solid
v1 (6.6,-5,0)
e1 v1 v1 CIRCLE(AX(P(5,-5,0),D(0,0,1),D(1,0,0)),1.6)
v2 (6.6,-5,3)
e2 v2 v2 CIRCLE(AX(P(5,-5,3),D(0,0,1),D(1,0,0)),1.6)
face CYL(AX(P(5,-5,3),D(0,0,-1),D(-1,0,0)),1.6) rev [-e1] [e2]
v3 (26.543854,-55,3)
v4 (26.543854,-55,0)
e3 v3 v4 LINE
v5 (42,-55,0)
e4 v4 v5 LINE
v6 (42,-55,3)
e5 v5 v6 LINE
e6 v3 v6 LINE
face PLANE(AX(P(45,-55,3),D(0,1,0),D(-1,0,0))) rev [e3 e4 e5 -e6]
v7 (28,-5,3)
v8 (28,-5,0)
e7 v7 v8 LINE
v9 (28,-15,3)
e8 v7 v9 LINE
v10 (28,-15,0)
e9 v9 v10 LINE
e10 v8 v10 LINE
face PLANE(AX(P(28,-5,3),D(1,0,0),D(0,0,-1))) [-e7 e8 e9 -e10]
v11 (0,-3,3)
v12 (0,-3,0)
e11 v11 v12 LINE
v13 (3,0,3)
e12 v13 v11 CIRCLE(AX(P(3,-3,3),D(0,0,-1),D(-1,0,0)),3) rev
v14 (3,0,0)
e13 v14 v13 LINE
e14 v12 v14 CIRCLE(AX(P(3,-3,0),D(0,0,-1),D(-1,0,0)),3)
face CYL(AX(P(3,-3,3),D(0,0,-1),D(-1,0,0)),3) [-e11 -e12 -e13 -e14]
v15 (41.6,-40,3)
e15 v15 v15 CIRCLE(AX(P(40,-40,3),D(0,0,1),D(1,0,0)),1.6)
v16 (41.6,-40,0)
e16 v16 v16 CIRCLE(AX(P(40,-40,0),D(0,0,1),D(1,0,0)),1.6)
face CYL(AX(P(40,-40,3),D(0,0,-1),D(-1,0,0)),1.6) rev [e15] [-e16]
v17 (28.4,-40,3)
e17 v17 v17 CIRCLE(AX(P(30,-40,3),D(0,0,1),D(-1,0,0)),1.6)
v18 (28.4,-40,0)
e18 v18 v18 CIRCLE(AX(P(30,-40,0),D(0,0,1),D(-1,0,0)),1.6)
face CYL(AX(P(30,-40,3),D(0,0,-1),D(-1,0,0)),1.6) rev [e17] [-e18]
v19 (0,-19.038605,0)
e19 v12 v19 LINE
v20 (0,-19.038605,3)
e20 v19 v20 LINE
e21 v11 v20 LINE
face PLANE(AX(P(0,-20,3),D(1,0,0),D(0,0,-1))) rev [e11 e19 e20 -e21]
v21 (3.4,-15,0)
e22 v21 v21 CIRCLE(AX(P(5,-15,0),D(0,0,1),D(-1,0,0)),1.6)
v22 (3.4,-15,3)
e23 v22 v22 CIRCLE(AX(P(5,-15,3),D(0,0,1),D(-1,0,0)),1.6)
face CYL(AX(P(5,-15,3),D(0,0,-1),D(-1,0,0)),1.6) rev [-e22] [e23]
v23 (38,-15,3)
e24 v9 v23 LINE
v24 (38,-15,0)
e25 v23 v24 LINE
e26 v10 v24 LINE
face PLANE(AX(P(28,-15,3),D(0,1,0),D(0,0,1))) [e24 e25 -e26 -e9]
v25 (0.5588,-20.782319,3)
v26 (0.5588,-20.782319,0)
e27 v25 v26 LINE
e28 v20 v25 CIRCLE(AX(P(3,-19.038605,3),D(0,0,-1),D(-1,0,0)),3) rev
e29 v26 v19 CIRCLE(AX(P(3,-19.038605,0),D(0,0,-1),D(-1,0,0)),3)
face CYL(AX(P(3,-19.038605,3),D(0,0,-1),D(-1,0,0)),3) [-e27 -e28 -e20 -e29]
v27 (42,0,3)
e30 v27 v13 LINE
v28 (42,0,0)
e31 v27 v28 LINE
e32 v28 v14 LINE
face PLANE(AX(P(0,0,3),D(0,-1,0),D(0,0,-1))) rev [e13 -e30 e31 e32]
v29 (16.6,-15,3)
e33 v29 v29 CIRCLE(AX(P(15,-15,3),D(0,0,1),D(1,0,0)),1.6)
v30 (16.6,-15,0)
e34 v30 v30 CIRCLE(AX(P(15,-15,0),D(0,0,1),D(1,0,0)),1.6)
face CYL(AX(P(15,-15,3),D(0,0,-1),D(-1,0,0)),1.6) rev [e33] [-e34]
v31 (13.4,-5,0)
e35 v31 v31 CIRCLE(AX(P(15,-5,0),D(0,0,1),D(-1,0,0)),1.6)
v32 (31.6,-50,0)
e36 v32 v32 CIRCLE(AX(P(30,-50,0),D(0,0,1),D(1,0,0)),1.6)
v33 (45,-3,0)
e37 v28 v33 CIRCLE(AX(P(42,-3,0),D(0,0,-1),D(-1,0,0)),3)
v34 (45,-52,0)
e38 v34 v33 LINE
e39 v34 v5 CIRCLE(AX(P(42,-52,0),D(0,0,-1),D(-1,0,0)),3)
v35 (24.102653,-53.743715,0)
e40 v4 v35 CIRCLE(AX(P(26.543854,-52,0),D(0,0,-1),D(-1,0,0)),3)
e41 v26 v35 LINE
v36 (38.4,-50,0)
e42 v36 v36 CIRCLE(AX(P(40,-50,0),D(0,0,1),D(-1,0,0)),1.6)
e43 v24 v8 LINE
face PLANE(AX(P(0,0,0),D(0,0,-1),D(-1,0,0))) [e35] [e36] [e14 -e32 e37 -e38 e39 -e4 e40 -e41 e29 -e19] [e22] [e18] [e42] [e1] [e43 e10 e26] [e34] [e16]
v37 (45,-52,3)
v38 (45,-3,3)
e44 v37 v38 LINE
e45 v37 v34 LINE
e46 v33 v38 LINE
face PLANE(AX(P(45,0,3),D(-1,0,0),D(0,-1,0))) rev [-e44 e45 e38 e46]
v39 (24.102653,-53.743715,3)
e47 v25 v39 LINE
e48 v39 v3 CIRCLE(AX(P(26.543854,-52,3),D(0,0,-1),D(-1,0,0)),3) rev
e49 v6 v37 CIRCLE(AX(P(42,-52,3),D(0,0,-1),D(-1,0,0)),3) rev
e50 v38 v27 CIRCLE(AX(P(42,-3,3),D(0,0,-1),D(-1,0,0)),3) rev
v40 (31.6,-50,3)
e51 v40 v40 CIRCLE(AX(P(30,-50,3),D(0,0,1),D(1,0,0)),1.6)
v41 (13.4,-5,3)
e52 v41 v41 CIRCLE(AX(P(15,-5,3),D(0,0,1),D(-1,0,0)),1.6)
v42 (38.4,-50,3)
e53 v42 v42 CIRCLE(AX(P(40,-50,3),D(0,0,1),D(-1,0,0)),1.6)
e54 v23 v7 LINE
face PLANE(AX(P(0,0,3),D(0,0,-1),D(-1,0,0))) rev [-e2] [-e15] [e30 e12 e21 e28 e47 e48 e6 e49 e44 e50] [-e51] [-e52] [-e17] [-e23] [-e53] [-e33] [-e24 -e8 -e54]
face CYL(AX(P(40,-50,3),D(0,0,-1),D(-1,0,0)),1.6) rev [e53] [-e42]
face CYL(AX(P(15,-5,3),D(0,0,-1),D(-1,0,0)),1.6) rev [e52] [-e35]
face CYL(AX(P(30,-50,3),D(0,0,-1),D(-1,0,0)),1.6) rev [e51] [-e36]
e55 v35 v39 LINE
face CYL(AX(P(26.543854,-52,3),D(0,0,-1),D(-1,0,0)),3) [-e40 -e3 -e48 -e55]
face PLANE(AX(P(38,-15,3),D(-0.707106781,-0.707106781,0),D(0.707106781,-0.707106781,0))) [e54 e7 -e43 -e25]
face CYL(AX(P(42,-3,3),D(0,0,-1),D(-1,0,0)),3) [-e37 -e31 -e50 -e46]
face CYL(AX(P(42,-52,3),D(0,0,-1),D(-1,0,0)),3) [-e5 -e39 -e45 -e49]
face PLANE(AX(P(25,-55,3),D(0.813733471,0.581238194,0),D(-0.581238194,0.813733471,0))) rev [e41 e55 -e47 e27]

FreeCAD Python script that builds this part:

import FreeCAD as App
import Part
import Sketcher

V = App.Vector
Q = App.Units.Quantity


def edges_at(feature, points):
    """Names of the edges that pass closest to the given points."""
    edges = feature.Shape.Edges
    near = lambda p: min(range(len(edges)), key=lambda i: edges[i].distToShape(Part.Vertex(*p))[0])
    return sorted({f"Edge{near(p) + 1}" for p in points})

doc = App.newDocument("Part")
params = doc.addObject("Spreadsheet::Sheet", "Params")
for row, (alias, value) in enumerate([
    ("sketch1_diameter", "3.2 mm"),
    ("sketch1_width", "45 mm"),
    ("sketch1_width2", "20 mm"),
    ("sketch1_width3", "10 mm"),
    ("sketch1_height", "55 mm"),
    ("pad1_length", "3 mm"),
    ("fillet_radius", "3 mm"),
], start=1):
    params.set(f"A{row}", alias)
    params.set(f"B{row}", "=" + value)
    params.setAlias(f"B{row}", alias)

body = doc.addObject("PartDesign::Body", "Body")

# Sketch on XY plane
sketch1 = body.newObject("Sketcher::SketchObject", "Sketch")
sketch1.AttachmentSupport = (doc.getObject("XY_Plane"), [""])
sketch1.MapMode = "FlatFace"
sketch1.addGeometry([
    Part.LineSegment(V(45, 0, 0), V(0, 0, 0)),  # 0
    Part.LineSegment(V(0, 0, 0), V(0, -20, 0)),  # 1
    Part.LineSegment(V(0, -20, 0), V(25, -55, 0)),  # 2
    Part.LineSegment(V(25, -55, 0), V(45, -55, 0)),  # 3
    Part.LineSegment(V(45, -55, 0), V(45, 0, 0)),  # 4
    Part.Circle(V(40, -50, 0), V(0, 0, 1), 1.6),  # 5
    Part.Circle(V(40, -40, 0), V(0, 0, 1), 1.6),  # 6
    Part.Circle(V(30, -50, 0), V(0, 0, 1), 1.6),  # 7
    Part.Circle(V(30, -40, 0), V(0, 0, 1), 1.6),  # 8
    Part.LineSegment(V(28, -5, 0), V(38, -15, 0)),  # 9
    Part.LineSegment(V(38, -15, 0), V(28, -15, 0)),  # 10
    Part.LineSegment(V(28, -15, 0), V(28, -5, 0)),  # 11
    Part.Circle(V(15, -15, 0), V(0, 0, 1), 1.6),  # 12
    Part.Circle(V(15, -5, 0), V(0, 0, 1), 1.6),  # 13
    Part.Circle(V(5, -15, 0), V(0, 0, 1), 1.6),  # 14
    Part.Circle(V(5, -5, 0), V(0, 0, 1), 1.6),  # 15
], False)
sketch1.addConstraint([
    Sketcher.Constraint("Coincident", 0, 2, 1, 1),
    Sketcher.Constraint("Coincident", 1, 2, 2, 1),
    Sketcher.Constraint("Coincident", 2, 2, 3, 1),
    Sketcher.Constraint("Coincident", 3, 2, 4, 1),
    Sketcher.Constraint("Coincident", 4, 2, 0, 1),
    Sketcher.Constraint("Coincident", 9, 2, 10, 1),
    Sketcher.Constraint("Coincident", 10, 2, 11, 1),
    Sketcher.Constraint("Coincident", 11, 2, 9, 1),
    Sketcher.Constraint("Horizontal", 0),
    Sketcher.Constraint("Vertical", 1),
    Sketcher.Constraint("Horizontal", 3),
    Sketcher.Constraint("Vertical", 4),
    Sketcher.Constraint("Horizontal", 10),
    Sketcher.Constraint("Vertical", 11),
    Sketcher.Constraint("Coincident", 0, 2, -1, 1),
    Sketcher.Constraint("Equal", 5, 6),
    Sketcher.Constraint("Equal", 6, 7),
    Sketcher.Constraint("Equal", 7, 8),
    Sketcher.Constraint("Equal", 8, 12),
    Sketcher.Constraint("Equal", 12, 13),
    Sketcher.Constraint("Equal", 13, 14),
    Sketcher.Constraint("Equal", 14, 15),
    Sketcher.Constraint("Horizontal", 5, 3, 7, 3),
    Sketcher.Constraint("Horizontal", 6, 3, 8, 3),
    Sketcher.Constraint("Horizontal", 12, 3, 14, 3),
    Sketcher.Constraint("Horizontal", 13, 3, 15, 3),
    Sketcher.Constraint("Horizontal", 14, 3, 9, 2),
    Sketcher.Constraint("Horizontal", 15, 3, 11, 2),
    Sketcher.Constraint("Vertical", 5, 3, 6, 3),
    Sketcher.Constraint("Vertical", 7, 3, 8, 3),
    Sketcher.Constraint("Vertical", 12, 3, 13, 3),
    Sketcher.Constraint("Vertical", 14, 3, 15, 3),
    Sketcher.Constraint("Equal", 3, 1),
    Sketcher.Constraint("Equal", 10, 11),
    Sketcher.Constraint("Diameter", 5, Q("3.2 mm")),
    Sketcher.Constraint("DistanceX", 0, 2, 0, 1, Q("45 mm")),
    Sketcher.Constraint("DistanceX", 3, 1, 3, 2, Q("20 mm")),
    Sketcher.Constraint("DistanceX", 10, 2, 10, 1, Q("10 mm")),
    Sketcher.Constraint("DistanceY", 4, 1, 4, 2, Q("55 mm")),
    Sketcher.Constraint("DistanceX", -1, 1, 5, 3, Q("40 mm")),
    Sketcher.Constraint("DistanceY", 5, 3, -1, 1, Q("50 mm")),
    Sketcher.Constraint("DistanceY", 6, 3, -1, 1, Q("40 mm")),
    Sketcher.Constraint("DistanceX", -1, 1, 7, 3, Q("30 mm")),
    Sketcher.Constraint("DistanceX", -1, 1, 12, 3, Q("15 mm")),
    Sketcher.Constraint("DistanceY", 12, 3, -1, 1, Q("15 mm")),
    Sketcher.Constraint("DistanceX", -1, 1, 14, 3, Q("5 mm")),
    Sketcher.Constraint("DistanceX", -1, 1, 9, 2, Q("38 mm")),
])
sketch1.setExpression("Constraints[34]", "Params.sketch1_diameter")
sketch1.setExpression("Constraints[35]", "Params.sketch1_width")
sketch1.setExpression("Constraints[36]", "Params.sketch1_width2")
sketch1.setExpression("Constraints[37]", "Params.sketch1_width3")
sketch1.setExpression("Constraints[38]", "Params.sketch1_height")
pad1 = body.newObject("PartDesign::Pad", "Pad")
pad1.Profile = sketch1
pad1.setExpression("Length", "Params.pad1_length")
doc.recompute()

fillet = body.newObject("PartDesign::Fillet", "Fillet")
fillet.Base = (pad1, edges_at(pad1, [
    (0, 0, 1.5),
    (45, 0, 1.5),
    (45, -55, 1.5),
    (25, -55, 1.5),
    (0, -20, 1.5),
]))
fillet.setExpression("Radius", "Params.fillet_radius")

doc.recompute()
